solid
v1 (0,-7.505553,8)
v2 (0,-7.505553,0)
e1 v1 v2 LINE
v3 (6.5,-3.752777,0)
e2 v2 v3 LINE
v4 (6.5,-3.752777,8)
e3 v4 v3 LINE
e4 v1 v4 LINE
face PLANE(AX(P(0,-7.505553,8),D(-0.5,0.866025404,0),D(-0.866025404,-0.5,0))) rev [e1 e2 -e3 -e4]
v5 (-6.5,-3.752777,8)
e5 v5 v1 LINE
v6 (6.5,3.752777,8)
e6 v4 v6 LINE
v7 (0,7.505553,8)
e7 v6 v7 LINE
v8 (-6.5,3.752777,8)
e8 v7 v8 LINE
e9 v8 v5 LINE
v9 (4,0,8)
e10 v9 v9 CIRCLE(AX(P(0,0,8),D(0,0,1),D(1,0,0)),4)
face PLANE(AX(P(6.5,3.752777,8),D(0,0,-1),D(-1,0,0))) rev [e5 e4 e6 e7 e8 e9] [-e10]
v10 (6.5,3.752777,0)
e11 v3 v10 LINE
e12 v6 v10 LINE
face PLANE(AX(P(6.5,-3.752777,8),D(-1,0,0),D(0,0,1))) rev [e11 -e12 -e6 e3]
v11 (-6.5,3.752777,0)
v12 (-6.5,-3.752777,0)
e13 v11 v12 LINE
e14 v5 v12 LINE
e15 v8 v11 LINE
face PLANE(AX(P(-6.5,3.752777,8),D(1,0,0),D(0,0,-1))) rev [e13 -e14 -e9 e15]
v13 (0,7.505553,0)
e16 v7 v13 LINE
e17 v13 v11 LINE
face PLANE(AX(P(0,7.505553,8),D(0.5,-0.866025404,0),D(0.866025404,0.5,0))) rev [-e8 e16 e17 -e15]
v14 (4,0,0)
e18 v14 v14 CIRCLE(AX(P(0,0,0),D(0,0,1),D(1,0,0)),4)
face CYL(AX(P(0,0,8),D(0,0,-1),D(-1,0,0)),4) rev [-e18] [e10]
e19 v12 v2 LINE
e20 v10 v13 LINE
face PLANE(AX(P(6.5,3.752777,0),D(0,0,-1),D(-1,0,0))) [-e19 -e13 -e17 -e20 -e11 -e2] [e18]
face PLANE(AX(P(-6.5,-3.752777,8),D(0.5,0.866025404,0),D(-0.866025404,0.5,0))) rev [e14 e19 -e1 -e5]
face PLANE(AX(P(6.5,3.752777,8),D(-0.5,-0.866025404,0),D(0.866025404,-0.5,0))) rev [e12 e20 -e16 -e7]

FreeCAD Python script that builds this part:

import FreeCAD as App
import Part
import Sketcher
Q = App.Units.Quantity

doc = App.newDocument("Part")
body = doc.addObject("PartDesign::Body", "Body")

# Sketch on XY plane
sketch1 = doc.addObject("Sketcher::SketchObject", "Sketch")
body.addObject(sketch1)
sketch1.AttachmentSupport = (doc.XY_Plane, [""])
sketch1.MapMode = "FlatFace"
sketch1.addGeometry(Part.LineSegment(App.Vector(0, 7.5, 0), App.Vector(-6.5, 3.8, 0)), False)
sketch1.addGeometry(Part.LineSegment(App.Vector(-6.5, 3.8, 0), App.Vector(-6.5, -3.8, 0)), False)
sketch1.addGeometry(Part.LineSegment(App.Vector(-6.5, -3.8, 0), App.Vector(0, -7.5, 0)), False)
sketch1.addGeometry(Part.LineSegment(App.Vector(0, -7.5, 0), App.Vector(6.5, -3.8, 0)), False)
sketch1.addGeometry(Part.LineSegment(App.Vector(6.5, -3.8, 0), App.Vector(6.5, 3.8, 0)), False)
sketch1.addGeometry(Part.LineSegment(App.Vector(6.5, 3.8, 0), App.Vector(0, 7.5, 0)), False)
sketch1.addGeometry(Part.Circle(App.Vector(0, 0, 0), App.Vector(0, 0, 1), 4), False)
sketch1.addConstraint(Sketcher.Constraint("Coincident", 0, 2, 1, 1))
sketch1.addConstraint(Sketcher.Constraint("Coincident", 1, 2, 2, 1))
sketch1.addConstraint(Sketcher.Constraint("Coincident", 2, 2, 3, 1))
sketch1.addConstraint(Sketcher.Constraint("Coincident", 3, 2, 4, 1))
sketch1.addConstraint(Sketcher.Constraint("Coincident", 4, 2, 5, 1))
sketch1.addConstraint(Sketcher.Constraint("Coincident", 5, 2, 0, 1))
sketch1.addConstraint(Sketcher.Constraint("Vertical", 1))
sketch1.addConstraint(Sketcher.Constraint("Vertical", 4))
sketch1.addConstraint(Sketcher.Constraint("Coincident", 6, 3, -1, 1))
sketch1.addConstraint(Sketcher.Constraint("Symmetric", 0, 2, 3, 2, -1, 1))
sketch1.addConstraint(Sketcher.Constraint("Symmetric", 2, 2, 5, 2, -1, 1))
sketch1.addConstraint(Sketcher.Constraint("PointOnObject", 2, 2, -2))
sketch1.addConstraint(Sketcher.Constraint("Parallel", 2, 5))
sketch1.addConstraint(Sketcher.Constraint("Horizontal", 1, 2, 3, 2))
sketch1.addConstraint(Sketcher.Constraint("Diameter", 6, 8.0))
sketch1.addConstraint(Sketcher.Constraint("Angle", 0, Q("-150 deg")))
sketch1.addConstraint(Sketcher.Constraint("DistanceX", 1, 2, 3, 2, 13.0))
sketch1.addConstraint(Sketcher.Constraint("DistanceY", 1, 2, 1, 1, 7.505554))
pad1 = doc.addObject("PartDesign::Pad", "Pad")
body.addObject(pad1)
pad1.Profile = sketch1
pad1.Length = 8

doc.recompute()
